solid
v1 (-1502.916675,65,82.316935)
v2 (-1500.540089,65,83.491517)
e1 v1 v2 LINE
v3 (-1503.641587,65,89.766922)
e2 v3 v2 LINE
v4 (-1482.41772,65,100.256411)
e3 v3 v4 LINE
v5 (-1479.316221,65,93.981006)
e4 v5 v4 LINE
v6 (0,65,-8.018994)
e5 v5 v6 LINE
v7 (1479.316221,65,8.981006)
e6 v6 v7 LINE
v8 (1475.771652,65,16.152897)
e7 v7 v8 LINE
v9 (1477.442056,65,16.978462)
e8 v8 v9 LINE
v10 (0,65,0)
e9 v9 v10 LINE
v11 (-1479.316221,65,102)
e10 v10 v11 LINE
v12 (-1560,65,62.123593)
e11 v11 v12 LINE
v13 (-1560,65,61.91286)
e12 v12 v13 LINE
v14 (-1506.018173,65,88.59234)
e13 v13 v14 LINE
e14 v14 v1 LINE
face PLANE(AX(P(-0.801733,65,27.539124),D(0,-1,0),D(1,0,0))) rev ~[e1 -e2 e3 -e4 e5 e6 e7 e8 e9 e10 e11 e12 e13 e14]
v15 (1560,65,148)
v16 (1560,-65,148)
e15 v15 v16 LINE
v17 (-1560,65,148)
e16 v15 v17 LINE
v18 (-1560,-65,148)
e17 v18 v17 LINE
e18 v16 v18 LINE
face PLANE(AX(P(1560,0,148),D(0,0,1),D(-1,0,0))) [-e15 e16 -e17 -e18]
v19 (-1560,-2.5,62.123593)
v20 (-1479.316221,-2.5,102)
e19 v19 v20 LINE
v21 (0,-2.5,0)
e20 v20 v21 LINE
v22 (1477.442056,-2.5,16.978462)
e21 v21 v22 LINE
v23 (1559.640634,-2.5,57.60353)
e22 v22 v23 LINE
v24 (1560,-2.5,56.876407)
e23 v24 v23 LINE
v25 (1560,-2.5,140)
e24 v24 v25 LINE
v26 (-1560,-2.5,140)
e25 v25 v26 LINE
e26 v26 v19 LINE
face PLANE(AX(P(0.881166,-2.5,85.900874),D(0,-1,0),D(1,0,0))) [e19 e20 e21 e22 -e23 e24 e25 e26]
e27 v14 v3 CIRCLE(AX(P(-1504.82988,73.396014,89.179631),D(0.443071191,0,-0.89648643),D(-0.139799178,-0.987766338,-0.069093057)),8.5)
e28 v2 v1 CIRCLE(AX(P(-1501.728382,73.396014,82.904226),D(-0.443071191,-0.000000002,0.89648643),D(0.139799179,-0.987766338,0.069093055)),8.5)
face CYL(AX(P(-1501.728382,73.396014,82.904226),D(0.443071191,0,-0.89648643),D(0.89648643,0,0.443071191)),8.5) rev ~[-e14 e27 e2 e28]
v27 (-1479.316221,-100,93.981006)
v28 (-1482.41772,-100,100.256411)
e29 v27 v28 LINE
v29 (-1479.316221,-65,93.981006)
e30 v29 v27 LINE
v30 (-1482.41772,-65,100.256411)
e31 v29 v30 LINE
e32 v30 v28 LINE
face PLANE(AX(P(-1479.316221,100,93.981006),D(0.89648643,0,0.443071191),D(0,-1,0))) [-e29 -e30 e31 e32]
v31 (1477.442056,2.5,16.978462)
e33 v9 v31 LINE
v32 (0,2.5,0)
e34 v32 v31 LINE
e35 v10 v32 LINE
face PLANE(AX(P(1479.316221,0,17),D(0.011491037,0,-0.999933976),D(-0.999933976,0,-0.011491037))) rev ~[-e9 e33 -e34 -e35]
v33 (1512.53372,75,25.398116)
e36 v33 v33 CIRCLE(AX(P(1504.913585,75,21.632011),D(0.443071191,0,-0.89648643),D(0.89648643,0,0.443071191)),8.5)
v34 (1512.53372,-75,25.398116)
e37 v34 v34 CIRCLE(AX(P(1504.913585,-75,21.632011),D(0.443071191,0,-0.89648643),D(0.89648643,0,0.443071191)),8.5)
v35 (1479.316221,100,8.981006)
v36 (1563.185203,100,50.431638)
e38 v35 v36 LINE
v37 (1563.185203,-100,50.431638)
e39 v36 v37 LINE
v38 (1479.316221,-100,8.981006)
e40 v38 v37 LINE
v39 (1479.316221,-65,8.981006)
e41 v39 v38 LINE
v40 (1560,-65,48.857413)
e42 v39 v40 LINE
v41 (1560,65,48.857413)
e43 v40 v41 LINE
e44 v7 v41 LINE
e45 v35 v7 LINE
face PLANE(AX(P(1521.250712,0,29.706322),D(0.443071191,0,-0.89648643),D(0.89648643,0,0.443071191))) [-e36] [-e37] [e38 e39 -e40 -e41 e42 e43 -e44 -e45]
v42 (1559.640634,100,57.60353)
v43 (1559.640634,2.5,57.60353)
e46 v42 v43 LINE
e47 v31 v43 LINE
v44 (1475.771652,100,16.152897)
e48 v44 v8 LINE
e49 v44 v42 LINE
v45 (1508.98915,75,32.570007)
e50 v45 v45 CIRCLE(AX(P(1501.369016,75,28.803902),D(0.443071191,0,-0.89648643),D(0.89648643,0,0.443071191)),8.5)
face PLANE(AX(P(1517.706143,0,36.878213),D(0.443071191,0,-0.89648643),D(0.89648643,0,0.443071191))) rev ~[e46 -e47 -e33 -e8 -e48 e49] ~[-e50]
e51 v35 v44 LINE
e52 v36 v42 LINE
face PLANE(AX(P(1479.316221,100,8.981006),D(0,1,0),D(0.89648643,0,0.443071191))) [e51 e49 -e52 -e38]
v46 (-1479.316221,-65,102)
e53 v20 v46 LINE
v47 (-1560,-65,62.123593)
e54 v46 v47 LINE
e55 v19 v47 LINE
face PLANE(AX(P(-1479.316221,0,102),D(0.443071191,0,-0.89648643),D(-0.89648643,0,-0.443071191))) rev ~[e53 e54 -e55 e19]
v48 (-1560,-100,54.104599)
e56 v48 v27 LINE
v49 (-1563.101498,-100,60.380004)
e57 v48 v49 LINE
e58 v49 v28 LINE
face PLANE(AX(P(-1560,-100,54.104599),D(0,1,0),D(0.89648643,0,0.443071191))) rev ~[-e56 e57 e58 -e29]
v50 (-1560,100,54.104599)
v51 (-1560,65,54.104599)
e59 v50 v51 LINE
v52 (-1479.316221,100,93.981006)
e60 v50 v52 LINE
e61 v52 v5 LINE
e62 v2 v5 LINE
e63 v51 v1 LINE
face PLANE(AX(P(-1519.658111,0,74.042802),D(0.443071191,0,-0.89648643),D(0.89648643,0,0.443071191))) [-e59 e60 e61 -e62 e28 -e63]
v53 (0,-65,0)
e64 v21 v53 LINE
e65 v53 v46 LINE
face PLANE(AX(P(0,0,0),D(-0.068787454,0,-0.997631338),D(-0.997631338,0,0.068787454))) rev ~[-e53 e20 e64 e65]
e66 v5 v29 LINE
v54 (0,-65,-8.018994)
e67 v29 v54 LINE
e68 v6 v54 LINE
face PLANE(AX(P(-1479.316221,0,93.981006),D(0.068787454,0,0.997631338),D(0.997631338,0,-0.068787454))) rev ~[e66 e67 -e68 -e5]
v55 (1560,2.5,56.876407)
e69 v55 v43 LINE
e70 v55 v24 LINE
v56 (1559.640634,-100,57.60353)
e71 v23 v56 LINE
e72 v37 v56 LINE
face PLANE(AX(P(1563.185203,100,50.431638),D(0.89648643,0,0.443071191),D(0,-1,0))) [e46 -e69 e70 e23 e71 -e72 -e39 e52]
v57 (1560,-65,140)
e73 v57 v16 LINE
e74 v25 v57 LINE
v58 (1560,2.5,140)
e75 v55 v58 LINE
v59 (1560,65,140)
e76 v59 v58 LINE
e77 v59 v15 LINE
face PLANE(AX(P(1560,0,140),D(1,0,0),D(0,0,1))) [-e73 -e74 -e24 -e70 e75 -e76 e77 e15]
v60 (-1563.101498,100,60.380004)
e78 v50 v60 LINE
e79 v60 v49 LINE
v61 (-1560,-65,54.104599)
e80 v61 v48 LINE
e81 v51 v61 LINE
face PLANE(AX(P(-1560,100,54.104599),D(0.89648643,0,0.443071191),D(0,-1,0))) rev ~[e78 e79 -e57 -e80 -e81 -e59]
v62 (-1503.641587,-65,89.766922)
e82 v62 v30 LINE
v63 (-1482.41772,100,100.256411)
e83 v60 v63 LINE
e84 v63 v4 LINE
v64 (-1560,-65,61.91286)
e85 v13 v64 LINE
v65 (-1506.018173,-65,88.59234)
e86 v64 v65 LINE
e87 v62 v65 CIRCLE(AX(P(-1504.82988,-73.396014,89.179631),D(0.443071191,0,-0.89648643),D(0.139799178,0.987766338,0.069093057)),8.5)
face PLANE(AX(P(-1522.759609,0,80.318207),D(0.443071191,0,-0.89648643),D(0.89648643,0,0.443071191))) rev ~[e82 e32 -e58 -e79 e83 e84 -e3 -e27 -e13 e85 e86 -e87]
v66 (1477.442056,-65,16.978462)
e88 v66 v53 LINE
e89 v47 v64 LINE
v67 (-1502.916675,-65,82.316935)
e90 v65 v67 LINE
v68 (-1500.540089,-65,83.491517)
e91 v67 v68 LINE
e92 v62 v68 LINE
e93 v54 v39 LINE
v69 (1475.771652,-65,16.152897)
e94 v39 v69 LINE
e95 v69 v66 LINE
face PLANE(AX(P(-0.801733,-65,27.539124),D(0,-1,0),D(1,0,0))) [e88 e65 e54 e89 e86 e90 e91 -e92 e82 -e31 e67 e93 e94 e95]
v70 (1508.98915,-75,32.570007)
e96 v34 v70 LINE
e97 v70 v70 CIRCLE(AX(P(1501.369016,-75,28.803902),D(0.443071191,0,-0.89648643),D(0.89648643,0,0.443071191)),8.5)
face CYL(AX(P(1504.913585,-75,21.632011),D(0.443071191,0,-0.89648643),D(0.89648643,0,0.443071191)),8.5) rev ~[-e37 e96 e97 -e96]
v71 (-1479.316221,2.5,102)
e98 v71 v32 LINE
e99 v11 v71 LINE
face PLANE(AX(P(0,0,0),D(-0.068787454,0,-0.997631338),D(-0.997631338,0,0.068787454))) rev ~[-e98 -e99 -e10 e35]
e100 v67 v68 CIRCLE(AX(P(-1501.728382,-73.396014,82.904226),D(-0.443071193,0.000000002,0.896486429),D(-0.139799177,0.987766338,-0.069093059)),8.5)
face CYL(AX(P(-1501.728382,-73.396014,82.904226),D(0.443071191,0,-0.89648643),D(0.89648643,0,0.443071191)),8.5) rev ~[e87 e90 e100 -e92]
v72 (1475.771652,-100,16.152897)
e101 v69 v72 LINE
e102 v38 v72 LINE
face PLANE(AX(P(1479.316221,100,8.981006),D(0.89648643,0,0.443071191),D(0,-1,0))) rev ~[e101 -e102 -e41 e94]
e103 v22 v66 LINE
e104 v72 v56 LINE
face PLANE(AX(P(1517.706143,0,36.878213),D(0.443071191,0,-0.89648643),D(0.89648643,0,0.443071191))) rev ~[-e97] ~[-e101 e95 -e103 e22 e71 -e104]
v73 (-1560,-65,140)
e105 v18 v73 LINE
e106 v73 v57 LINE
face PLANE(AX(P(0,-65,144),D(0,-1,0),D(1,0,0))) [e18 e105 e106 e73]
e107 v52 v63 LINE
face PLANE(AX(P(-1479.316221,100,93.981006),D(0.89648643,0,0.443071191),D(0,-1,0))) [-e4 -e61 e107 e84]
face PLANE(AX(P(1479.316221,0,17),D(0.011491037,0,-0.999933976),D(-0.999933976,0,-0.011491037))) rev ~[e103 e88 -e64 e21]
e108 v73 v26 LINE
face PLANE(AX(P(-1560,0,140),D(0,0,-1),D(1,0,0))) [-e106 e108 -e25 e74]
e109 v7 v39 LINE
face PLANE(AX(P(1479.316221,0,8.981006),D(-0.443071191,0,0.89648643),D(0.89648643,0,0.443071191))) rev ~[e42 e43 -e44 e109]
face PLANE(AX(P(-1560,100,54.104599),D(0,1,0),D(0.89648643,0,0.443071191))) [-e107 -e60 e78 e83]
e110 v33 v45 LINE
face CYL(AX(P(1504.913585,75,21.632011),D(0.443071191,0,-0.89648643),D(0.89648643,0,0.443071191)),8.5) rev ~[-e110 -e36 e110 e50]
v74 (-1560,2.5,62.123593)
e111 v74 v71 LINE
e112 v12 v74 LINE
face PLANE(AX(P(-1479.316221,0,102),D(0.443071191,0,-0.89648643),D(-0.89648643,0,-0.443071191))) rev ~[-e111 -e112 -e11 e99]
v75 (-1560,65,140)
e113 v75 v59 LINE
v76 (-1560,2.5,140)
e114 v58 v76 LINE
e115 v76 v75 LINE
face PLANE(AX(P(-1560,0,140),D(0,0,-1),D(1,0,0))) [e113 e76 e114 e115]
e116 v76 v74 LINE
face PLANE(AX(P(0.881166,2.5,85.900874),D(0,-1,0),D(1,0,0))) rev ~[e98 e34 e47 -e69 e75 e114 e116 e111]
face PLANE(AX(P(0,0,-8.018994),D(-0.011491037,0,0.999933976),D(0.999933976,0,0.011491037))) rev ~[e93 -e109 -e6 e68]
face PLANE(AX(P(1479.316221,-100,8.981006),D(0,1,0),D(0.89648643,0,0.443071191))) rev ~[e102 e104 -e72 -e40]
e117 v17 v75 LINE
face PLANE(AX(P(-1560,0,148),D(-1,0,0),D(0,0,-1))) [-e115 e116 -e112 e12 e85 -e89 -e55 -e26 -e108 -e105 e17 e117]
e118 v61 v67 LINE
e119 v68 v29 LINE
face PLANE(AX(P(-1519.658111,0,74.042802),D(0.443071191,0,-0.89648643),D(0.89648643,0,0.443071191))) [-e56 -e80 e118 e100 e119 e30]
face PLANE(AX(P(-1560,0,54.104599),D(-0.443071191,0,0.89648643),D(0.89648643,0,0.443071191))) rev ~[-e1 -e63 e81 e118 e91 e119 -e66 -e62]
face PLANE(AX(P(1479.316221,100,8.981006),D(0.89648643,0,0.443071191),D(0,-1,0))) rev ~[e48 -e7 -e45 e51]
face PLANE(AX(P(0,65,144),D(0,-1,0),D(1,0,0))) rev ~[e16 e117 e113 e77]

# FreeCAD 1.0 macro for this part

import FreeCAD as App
import Part
import Sketcher
from FreeCAD import Vector
Q = App.Units.Quantity


def add_polygon(sketch, points):
    """Adds a closed chain of lines whose ends are joined by coincident constraints."""
    first, n = sketch.GeometryCount, len(points)
    for a, b in zip(points, points[1:] + points[:1]):
        sketch.addGeometry(Part.LineSegment(App.Vector(*a, 0), App.Vector(*b, 0)), False)
    for i in range(n):
        sketch.addConstraint(Sketcher.Constraint("Coincident", first + i, 2, first + (i + 1) % n, 1))

doc = App.newDocument("Part")
body = doc.addObject("PartDesign::Body", "Body")

sketch1 = body.newObject("Sketcher::SketchObject", "Sketch")
sketch1.AttachmentSupport = (doc.getObject("XZ_Plane"), [""])
sketch1.MapMode = "FlatFace"
add_polygon(sketch1, [(1560, 140), (-1560, 140), (-1560, 62.123593), (-1479.316221, 102), (0, 0), (1479.316221, 17), (1560, 56.876407)])
sketch1.addConstraint(Sketcher.Constraint("Horizontal", 0))
sketch1.addConstraint(Sketcher.Constraint("Vertical", 1))
sketch1.addConstraint(Sketcher.Constraint("Vertical", 6))
sketch1.addConstraint(Sketcher.Constraint("Coincident", 3, 2, -1, 1))
sketch1.addConstraint(Sketcher.Constraint("Parallel", 2, 5))
sketch1.addConstraint(Sketcher.Constraint("Equal", 2, 5))
sketch1.addConstraint(Sketcher.Constraint("DistanceX", 0, 2, 0, 1, 3120.0))
sketch1.addConstraint(Sketcher.Constraint("Distance", 2, 90.0))
sketch1.addConstraint(Sketcher.Constraint("DistanceX", 0, 2, -1, 1, 1560.0))
sketch1.addConstraint(Sketcher.Constraint("DistanceY", -1, 1, 0, 2, 140.0))
sketch1.addConstraint(Sketcher.Constraint("DistanceY", -1, 1, 2, 2, 102.0))
sketch1.addConstraint(Sketcher.Constraint("DistanceY", -1, 1, 4, 2, 17.0))
sketch1.addConstraint(Sketcher.Constraint("Angle", 2, Q("26.3 deg")))
pad1 = body.newObject("PartDesign::Pad", "Pad")
pad1.Profile = sketch1
pad1.Length = 5
pad1.Midplane = True

sketch2 = body.newObject("Sketcher::SketchObject", "Sketch001")
sketch2.AttachmentSupport = (doc.getObject("XZ_Plane"), [""])
sketch2.MapMode = "FlatFace"
add_polygon(sketch2, [(1479.316221, 17), (0, 0), (-1479.316221, 102), (-1560, 62.123593), (-1560, 54.104599), (-1479.316221, 93.981006), (0, -8.018994), (1479.316221, 8.981006), (1560, 48.857413), (1560, 56.876407)])
add_polygon(sketch2, [(-1560, 140), (1560, 140), (1560, 148), (-1560, 148)])
sketch2.addConstraint(Sketcher.Constraint("Vertical", 3))
sketch2.addConstraint(Sketcher.Constraint("Vertical", 8))
sketch2.addConstraint(Sketcher.Constraint("Horizontal", 10))
sketch2.addConstraint(Sketcher.Constraint("Vertical", 11))
sketch2.addConstraint(Sketcher.Constraint("Horizontal", 12))
sketch2.addConstraint(Sketcher.Constraint("Vertical", 13))
sketch2.addConstraint(Sketcher.Constraint("Coincident", 0, 2, -1, 1))
sketch2.addConstraint(Sketcher.Constraint("PointOnObject", 5, 2, -2))
sketch2.addConstraint(Sketcher.Constraint("Parallel", 2, 4))
sketch2.addConstraint(Sketcher.Constraint("Parallel", 1, 5))
sketch2.addConstraint(Sketcher.Constraint("Parallel", 0, 6))
sketch2.addConstraint(Sketcher.Constraint("Parallel", 4, 7))
sketch2.addConstraint(Sketcher.Constraint("Parallel", 7, 9))
sketch2.addConstraint(Sketcher.Constraint("Vertical", 1, 2, 4, 2))
sketch2.addConstraint(Sketcher.Constraint("Vertical", 6, 2, 9, 2))
sketch2.addConstraint(Sketcher.Constraint("Vertical", 8, 2, 10, 2))
sketch2.addConstraint(Sketcher.Constraint("Vertical", 3, 2, 12, 2))
sketch2.addConstraint(Sketcher.Constraint("Equal", 4, 7))
sketch2.addConstraint(Sketcher.Constraint("DistanceX", 10, 1, 10, 2, 3120.0))
sketch2.addConstraint(Sketcher.Constraint("DistanceY", 11, 1, 11, 2, 8.0))
sketch2.addConstraint(Sketcher.Constraint("Distance", 2, 90.0))
sketch2.addConstraint(Sketcher.Constraint("DistanceY", -1, 1, 1, 2, 102.0))
sketch2.addConstraint(Sketcher.Constraint("DistanceX", 2, 2, -1, 1, 1560.0))
sketch2.addConstraint(Sketcher.Constraint("DistanceY", -1, 1, 9, 2, 17.0))
sketch2.addConstraint(Sketcher.Constraint("DistanceY", -1, 1, 10, 2, 140.0))
sketch2.addConstraint(Sketcher.Constraint("Angle", 2, Q("-153.7 deg")))
sketch2.addConstraint(Sketcher.Constraint("DistanceY", -1, 1, 3, 2, 54.104599))
pad2 = body.newObject("PartDesign::Pad", "Pad001")
pad2.Profile = sketch2
pad2.Length = 130
pad2.Midplane = True

sketch3 = body.newObject("Sketcher::SketchObject", "Sketch002")
sketch3.Placement = App.Placement(Vector(286.840323, 0, -580.377291), App.Rotation(Vector(0.89648643, 0, 0.443071191), Vector(0, -0.999999999, 0), Vector(0.443071191, 0, -0.89648643), "ZXY"))
add_polygon(sketch3, [(1330.166143, 100), (1330.166143, -100), (1423.719128, -100), (1423.719128, 100)])
sketch3.addGeometry(Part.Circle(Vector(1358.719128, -75, 0), Vector(0, 0, 1), 8.5), False)
sketch3.addGeometry(Part.Circle(Vector(1358.719128, 75, 0), Vector(0, 0, 1), 8.5), False)
sketch3.addConstraint(Sketcher.Constraint("Vertical", 0))
sketch3.addConstraint(Sketcher.Constraint("Horizontal", 1))
sketch3.addConstraint(Sketcher.Constraint("Vertical", 2))
sketch3.addConstraint(Sketcher.Constraint("Horizontal", 3))
sketch3.addConstraint(Sketcher.Constraint("Equal", 4, 5))
sketch3.addConstraint(Sketcher.Constraint("Symmetric", 4, 3, 5, 3, -1))
sketch3.addConstraint(Sketcher.Constraint("Diameter", 4, 17.0))
sketch3.addConstraint(Sketcher.Constraint("DistanceY", 0, 2, 0, 1, 200.0))
sketch3.addConstraint(Sketcher.Constraint("DistanceY", 4, 3, -1, 1, 75.0))
sketch3.addConstraint(Sketcher.Constraint("DistanceY", 0, 2, -1, 1, 100.0))
sketch3.addConstraint(Sketcher.Constraint("DistanceX", 4, 3, 1, 2, 65.0))
sketch3.addConstraint(Sketcher.Constraint("DistanceX", 1, 1, 1, 2, 93.552985))
sketch3.addConstraint(Sketcher.Constraint("DistanceX", -1, 1, 4, 3, 1358.719128))
pad3 = body.newObject("PartDesign::Pad", "Pad002")
pad3.Profile = sketch3
pad3.Length = 8
pad3.Reversed = True

sketch4 = body.newObject("Sketcher::SketchObject", "Sketch003")
sketch4.Placement = App.Placement(Vector(-327.737587, 0, 663.126616), App.Rotation(Vector(0.89648643, 0, 0.443071191), Vector(0, -0.999999999, 0), Vector(0.443071191, 0, -0.89648643), "ZXY"))
add_polygon(sketch4, [(-1374.546642, 100), (-1374.546642, -100), (-1284.546642, -100), (-1284.546642, 100)])
sketch4.addGeometry(Part.Circle(Vector(-1309.546642, -73.396014, 0), Vector(0, 0, 1), 8.5), False)
sketch4.addGeometry(Part.Circle(Vector(-1309.546642, 73.396014, 0), Vector(0, 0, 1), 8.5), False)
sketch4.addConstraint(Sketcher.Constraint("Vertical", 0))
sketch4.addConstraint(Sketcher.Constraint("Horizontal", 1))
sketch4.addConstraint(Sketcher.Constraint("Vertical", 2))
sketch4.addConstraint(Sketcher.Constraint("Horizontal", 3))
sketch4.addConstraint(Sketcher.Constraint("Equal", 4, 5))
sketch4.addConstraint(Sketcher.Constraint("Symmetric", 4, 3, 5, 3, -1))
sketch4.addConstraint(Sketcher.Constraint("Diameter", 4, 17.0))
sketch4.addConstraint(Sketcher.Constraint("DistanceX", 1, 1, 1, 2, 90.0))
sketch4.addConstraint(Sketcher.Constraint("DistanceY", 0, 2, 0, 1, 200.0))
sketch4.addConstraint(Sketcher.Constraint("DistanceY", 0, 2, -1, 1, 100.0))
sketch4.addConstraint(Sketcher.Constraint("DistanceX", 0, 2, 4, 3, 65.0))
sketch4.addConstraint(Sketcher.Constraint("DistanceX", 4, 3, -1, 1, 1309.546642))
sketch4.addConstraint(Sketcher.Constraint("DistanceY", 4, 3, -1, 1, 73.396014))
pad4 = body.newObject("PartDesign::Pad", "Pad003")
pad4.Profile = sketch4
pad4.Length = 7
pad4.Reversed = True

doc.recompute()
